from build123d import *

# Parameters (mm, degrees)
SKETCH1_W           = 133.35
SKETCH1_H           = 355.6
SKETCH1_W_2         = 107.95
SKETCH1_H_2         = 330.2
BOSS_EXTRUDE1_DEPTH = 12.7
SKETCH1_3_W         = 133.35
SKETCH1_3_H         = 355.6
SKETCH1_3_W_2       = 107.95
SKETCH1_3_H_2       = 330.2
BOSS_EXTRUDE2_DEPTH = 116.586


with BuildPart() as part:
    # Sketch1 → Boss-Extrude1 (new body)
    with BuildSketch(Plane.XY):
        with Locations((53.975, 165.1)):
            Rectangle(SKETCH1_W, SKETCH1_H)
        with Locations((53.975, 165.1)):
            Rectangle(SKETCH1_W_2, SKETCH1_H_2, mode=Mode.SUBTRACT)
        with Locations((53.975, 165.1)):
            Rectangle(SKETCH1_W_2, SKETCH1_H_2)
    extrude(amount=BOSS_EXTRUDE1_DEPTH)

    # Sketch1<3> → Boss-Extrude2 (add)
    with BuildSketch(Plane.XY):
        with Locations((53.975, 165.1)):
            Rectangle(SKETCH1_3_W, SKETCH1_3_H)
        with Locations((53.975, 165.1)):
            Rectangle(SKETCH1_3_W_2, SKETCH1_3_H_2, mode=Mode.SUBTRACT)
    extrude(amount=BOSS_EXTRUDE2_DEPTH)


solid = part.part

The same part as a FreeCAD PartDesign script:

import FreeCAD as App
import Part
import Sketcher

V = App.Vector
Q = App.Units.Quantity

doc = App.newDocument("Part")
params = doc.addObject("Spreadsheet::Sheet", "Params")
for row, (alias, value) in enumerate([
    ("sketch1_height", "14 in"),
    ("sketch1_width", "5.25 in"),
    ("pad1_length", "0.5 in"),
    ("sketch2_height", "14 in"),
    ("sketch2_height2", "13 in"),
    ("sketch2_width", "5.25 in"),
    ("sketch2_width2", "4.25 in"),
    ("pad2_length", "4.59 in"),
], start=1):
    params.set(f"A{row}", alias)
    params.set(f"B{row}", "=" + value)
    params.setAlias(f"B{row}", alias)

body = doc.addObject("PartDesign::Body", "Body")

# Sketch on XY plane
sketch1 = body.newObject("Sketcher::SketchObject", "Sketch")
sketch1.AttachmentSupport = (doc.getObject("XY_Plane"), [""])
sketch1.MapMode = "FlatFace"
sketch1.addGeometry([
    Part.LineSegment(V(-13, 343, 0), V(-13, -13, 0)),
    Part.LineSegment(V(-13, -13, 0), V(121, -13, 0)),
    Part.LineSegment(V(121, -13, 0), V(121, 343, 0)),
    Part.LineSegment(V(121, 343, 0), V(-13, 343, 0)),
], False)
sketch1.addConstraint([
    Sketcher.Constraint("Coincident", 0, 2, 1, 1),
    Sketcher.Constraint("Coincident", 1, 2, 2, 1),
    Sketcher.Constraint("Coincident", 2, 2, 3, 1),
    Sketcher.Constraint("Coincident", 3, 2, 0, 1),
    Sketcher.Constraint("Vertical", 0),
    Sketcher.Constraint("Horizontal", 1),
    Sketcher.Constraint("Vertical", 2),
    Sketcher.Constraint("Horizontal", 3),
    Sketcher.Constraint("DistanceY", 0, 2, 0, 1, Q("14 in")),
    Sketcher.Constraint("DistanceX", 1, 1, 1, 2, Q("5.25 in")),
    Sketcher.Constraint("DistanceX", 0, 2, -1, 1, Q("0.5 in")),
    Sketcher.Constraint("DistanceY", 0, 2, -1, 1, Q("0.5 in")),
])
sketch1.setExpression("Constraints[8]", "Params.sketch1_height")
sketch1.setExpression("Constraints[9]", "Params.sketch1_width")
pad1 = body.newObject("PartDesign::Pad", "Pad")
pad1.Profile = sketch1
pad1.setExpression("Length", "Params.pad1_length")

# Sketch on XY plane
sketch2 = body.newObject("Sketcher::SketchObject", "Sketch001")
sketch2.AttachmentSupport = (doc.getObject("XY_Plane"), [""])
sketch2.MapMode = "FlatFace"
sketch2.addGeometry([
    Part.LineSegment(V(-13, 343, 0), V(-13, -13, 0)),  # 0
    Part.LineSegment(V(-13, -13, 0), V(121, -13, 0)),  # 1
    Part.LineSegment(V(121, -13, 0), V(121, 343, 0)),  # 2
    Part.LineSegment(V(121, 343, 0), V(-13, 343, 0)),  # 3
    Part.LineSegment(V(108, 0, 0), V(0, 0, 0)),  # 4
    Part.LineSegment(V(0, 0, 0), V(0, 330, 0)),  # 5
    Part.LineSegment(V(0, 330, 0), V(108, 330, 0)),  # 6
    Part.LineSegment(V(108, 330, 0), V(108, 0, 0)),  # 7
], False)
sketch2.addConstraint([
    Sketcher.Constraint("Coincident", 0, 2, 1, 1),
    Sketcher.Constraint("Coincident", 1, 2, 2, 1),
    Sketcher.Constraint("Coincident", 2, 2, 3, 1),
    Sketcher.Constraint("Coincident", 3, 2, 0, 1),
    Sketcher.Constraint("Coincident", 4, 2, 5, 1),
    Sketcher.Constraint("Coincident", 5, 2, 6, 1),
    Sketcher.Constraint("Coincident", 6, 2, 7, 1),
    Sketcher.Constraint("Coincident", 7, 2, 4, 1),
    Sketcher.Constraint("Vertical", 0),
    Sketcher.Constraint("Horizontal", 1),
    Sketcher.Constraint("Vertical", 2),
    Sketcher.Constraint("Horizontal", 3),
    Sketcher.Constraint("Horizontal", 4),
    Sketcher.Constraint("Vertical", 5),
    Sketcher.Constraint("Horizontal", 6),
    Sketcher.Constraint("Vertical", 7),
    Sketcher.Constraint("Coincident", 4, 2, -1, 1),
    Sketcher.Constraint("DistanceY", 0, 2, 0, 1, Q("14 in")),
    Sketcher.Constraint("DistanceY", 5, 1, 5, 2, Q("13 in")),
    Sketcher.Constraint("DistanceX", 1, 1, 1, 2, Q("5.25 in")),
    Sketcher.Constraint("DistanceX", 4, 2, 4, 1, Q("4.25 in")),
    Sketcher.Constraint("DistanceX", 0, 2, -1, 1, Q("0.5 in")),
    Sketcher.Constraint("DistanceY", 0, 2, -1, 1, Q("0.5 in")),
])
sketch2.setExpression("Constraints[17]", "Params.sketch2_height")
sketch2.setExpression("Constraints[18]", "Params.sketch2_height2")
sketch2.setExpression("Constraints[19]", "Params.sketch2_width")
sketch2.setExpression("Constraints[20]", "Params.sketch2_width2")
pad2 = body.newObject("PartDesign::Pad", "Pad001")
pad2.Profile = sketch2
pad2.setExpression("Length", "Params.pad2_length")

doc.recompute()
